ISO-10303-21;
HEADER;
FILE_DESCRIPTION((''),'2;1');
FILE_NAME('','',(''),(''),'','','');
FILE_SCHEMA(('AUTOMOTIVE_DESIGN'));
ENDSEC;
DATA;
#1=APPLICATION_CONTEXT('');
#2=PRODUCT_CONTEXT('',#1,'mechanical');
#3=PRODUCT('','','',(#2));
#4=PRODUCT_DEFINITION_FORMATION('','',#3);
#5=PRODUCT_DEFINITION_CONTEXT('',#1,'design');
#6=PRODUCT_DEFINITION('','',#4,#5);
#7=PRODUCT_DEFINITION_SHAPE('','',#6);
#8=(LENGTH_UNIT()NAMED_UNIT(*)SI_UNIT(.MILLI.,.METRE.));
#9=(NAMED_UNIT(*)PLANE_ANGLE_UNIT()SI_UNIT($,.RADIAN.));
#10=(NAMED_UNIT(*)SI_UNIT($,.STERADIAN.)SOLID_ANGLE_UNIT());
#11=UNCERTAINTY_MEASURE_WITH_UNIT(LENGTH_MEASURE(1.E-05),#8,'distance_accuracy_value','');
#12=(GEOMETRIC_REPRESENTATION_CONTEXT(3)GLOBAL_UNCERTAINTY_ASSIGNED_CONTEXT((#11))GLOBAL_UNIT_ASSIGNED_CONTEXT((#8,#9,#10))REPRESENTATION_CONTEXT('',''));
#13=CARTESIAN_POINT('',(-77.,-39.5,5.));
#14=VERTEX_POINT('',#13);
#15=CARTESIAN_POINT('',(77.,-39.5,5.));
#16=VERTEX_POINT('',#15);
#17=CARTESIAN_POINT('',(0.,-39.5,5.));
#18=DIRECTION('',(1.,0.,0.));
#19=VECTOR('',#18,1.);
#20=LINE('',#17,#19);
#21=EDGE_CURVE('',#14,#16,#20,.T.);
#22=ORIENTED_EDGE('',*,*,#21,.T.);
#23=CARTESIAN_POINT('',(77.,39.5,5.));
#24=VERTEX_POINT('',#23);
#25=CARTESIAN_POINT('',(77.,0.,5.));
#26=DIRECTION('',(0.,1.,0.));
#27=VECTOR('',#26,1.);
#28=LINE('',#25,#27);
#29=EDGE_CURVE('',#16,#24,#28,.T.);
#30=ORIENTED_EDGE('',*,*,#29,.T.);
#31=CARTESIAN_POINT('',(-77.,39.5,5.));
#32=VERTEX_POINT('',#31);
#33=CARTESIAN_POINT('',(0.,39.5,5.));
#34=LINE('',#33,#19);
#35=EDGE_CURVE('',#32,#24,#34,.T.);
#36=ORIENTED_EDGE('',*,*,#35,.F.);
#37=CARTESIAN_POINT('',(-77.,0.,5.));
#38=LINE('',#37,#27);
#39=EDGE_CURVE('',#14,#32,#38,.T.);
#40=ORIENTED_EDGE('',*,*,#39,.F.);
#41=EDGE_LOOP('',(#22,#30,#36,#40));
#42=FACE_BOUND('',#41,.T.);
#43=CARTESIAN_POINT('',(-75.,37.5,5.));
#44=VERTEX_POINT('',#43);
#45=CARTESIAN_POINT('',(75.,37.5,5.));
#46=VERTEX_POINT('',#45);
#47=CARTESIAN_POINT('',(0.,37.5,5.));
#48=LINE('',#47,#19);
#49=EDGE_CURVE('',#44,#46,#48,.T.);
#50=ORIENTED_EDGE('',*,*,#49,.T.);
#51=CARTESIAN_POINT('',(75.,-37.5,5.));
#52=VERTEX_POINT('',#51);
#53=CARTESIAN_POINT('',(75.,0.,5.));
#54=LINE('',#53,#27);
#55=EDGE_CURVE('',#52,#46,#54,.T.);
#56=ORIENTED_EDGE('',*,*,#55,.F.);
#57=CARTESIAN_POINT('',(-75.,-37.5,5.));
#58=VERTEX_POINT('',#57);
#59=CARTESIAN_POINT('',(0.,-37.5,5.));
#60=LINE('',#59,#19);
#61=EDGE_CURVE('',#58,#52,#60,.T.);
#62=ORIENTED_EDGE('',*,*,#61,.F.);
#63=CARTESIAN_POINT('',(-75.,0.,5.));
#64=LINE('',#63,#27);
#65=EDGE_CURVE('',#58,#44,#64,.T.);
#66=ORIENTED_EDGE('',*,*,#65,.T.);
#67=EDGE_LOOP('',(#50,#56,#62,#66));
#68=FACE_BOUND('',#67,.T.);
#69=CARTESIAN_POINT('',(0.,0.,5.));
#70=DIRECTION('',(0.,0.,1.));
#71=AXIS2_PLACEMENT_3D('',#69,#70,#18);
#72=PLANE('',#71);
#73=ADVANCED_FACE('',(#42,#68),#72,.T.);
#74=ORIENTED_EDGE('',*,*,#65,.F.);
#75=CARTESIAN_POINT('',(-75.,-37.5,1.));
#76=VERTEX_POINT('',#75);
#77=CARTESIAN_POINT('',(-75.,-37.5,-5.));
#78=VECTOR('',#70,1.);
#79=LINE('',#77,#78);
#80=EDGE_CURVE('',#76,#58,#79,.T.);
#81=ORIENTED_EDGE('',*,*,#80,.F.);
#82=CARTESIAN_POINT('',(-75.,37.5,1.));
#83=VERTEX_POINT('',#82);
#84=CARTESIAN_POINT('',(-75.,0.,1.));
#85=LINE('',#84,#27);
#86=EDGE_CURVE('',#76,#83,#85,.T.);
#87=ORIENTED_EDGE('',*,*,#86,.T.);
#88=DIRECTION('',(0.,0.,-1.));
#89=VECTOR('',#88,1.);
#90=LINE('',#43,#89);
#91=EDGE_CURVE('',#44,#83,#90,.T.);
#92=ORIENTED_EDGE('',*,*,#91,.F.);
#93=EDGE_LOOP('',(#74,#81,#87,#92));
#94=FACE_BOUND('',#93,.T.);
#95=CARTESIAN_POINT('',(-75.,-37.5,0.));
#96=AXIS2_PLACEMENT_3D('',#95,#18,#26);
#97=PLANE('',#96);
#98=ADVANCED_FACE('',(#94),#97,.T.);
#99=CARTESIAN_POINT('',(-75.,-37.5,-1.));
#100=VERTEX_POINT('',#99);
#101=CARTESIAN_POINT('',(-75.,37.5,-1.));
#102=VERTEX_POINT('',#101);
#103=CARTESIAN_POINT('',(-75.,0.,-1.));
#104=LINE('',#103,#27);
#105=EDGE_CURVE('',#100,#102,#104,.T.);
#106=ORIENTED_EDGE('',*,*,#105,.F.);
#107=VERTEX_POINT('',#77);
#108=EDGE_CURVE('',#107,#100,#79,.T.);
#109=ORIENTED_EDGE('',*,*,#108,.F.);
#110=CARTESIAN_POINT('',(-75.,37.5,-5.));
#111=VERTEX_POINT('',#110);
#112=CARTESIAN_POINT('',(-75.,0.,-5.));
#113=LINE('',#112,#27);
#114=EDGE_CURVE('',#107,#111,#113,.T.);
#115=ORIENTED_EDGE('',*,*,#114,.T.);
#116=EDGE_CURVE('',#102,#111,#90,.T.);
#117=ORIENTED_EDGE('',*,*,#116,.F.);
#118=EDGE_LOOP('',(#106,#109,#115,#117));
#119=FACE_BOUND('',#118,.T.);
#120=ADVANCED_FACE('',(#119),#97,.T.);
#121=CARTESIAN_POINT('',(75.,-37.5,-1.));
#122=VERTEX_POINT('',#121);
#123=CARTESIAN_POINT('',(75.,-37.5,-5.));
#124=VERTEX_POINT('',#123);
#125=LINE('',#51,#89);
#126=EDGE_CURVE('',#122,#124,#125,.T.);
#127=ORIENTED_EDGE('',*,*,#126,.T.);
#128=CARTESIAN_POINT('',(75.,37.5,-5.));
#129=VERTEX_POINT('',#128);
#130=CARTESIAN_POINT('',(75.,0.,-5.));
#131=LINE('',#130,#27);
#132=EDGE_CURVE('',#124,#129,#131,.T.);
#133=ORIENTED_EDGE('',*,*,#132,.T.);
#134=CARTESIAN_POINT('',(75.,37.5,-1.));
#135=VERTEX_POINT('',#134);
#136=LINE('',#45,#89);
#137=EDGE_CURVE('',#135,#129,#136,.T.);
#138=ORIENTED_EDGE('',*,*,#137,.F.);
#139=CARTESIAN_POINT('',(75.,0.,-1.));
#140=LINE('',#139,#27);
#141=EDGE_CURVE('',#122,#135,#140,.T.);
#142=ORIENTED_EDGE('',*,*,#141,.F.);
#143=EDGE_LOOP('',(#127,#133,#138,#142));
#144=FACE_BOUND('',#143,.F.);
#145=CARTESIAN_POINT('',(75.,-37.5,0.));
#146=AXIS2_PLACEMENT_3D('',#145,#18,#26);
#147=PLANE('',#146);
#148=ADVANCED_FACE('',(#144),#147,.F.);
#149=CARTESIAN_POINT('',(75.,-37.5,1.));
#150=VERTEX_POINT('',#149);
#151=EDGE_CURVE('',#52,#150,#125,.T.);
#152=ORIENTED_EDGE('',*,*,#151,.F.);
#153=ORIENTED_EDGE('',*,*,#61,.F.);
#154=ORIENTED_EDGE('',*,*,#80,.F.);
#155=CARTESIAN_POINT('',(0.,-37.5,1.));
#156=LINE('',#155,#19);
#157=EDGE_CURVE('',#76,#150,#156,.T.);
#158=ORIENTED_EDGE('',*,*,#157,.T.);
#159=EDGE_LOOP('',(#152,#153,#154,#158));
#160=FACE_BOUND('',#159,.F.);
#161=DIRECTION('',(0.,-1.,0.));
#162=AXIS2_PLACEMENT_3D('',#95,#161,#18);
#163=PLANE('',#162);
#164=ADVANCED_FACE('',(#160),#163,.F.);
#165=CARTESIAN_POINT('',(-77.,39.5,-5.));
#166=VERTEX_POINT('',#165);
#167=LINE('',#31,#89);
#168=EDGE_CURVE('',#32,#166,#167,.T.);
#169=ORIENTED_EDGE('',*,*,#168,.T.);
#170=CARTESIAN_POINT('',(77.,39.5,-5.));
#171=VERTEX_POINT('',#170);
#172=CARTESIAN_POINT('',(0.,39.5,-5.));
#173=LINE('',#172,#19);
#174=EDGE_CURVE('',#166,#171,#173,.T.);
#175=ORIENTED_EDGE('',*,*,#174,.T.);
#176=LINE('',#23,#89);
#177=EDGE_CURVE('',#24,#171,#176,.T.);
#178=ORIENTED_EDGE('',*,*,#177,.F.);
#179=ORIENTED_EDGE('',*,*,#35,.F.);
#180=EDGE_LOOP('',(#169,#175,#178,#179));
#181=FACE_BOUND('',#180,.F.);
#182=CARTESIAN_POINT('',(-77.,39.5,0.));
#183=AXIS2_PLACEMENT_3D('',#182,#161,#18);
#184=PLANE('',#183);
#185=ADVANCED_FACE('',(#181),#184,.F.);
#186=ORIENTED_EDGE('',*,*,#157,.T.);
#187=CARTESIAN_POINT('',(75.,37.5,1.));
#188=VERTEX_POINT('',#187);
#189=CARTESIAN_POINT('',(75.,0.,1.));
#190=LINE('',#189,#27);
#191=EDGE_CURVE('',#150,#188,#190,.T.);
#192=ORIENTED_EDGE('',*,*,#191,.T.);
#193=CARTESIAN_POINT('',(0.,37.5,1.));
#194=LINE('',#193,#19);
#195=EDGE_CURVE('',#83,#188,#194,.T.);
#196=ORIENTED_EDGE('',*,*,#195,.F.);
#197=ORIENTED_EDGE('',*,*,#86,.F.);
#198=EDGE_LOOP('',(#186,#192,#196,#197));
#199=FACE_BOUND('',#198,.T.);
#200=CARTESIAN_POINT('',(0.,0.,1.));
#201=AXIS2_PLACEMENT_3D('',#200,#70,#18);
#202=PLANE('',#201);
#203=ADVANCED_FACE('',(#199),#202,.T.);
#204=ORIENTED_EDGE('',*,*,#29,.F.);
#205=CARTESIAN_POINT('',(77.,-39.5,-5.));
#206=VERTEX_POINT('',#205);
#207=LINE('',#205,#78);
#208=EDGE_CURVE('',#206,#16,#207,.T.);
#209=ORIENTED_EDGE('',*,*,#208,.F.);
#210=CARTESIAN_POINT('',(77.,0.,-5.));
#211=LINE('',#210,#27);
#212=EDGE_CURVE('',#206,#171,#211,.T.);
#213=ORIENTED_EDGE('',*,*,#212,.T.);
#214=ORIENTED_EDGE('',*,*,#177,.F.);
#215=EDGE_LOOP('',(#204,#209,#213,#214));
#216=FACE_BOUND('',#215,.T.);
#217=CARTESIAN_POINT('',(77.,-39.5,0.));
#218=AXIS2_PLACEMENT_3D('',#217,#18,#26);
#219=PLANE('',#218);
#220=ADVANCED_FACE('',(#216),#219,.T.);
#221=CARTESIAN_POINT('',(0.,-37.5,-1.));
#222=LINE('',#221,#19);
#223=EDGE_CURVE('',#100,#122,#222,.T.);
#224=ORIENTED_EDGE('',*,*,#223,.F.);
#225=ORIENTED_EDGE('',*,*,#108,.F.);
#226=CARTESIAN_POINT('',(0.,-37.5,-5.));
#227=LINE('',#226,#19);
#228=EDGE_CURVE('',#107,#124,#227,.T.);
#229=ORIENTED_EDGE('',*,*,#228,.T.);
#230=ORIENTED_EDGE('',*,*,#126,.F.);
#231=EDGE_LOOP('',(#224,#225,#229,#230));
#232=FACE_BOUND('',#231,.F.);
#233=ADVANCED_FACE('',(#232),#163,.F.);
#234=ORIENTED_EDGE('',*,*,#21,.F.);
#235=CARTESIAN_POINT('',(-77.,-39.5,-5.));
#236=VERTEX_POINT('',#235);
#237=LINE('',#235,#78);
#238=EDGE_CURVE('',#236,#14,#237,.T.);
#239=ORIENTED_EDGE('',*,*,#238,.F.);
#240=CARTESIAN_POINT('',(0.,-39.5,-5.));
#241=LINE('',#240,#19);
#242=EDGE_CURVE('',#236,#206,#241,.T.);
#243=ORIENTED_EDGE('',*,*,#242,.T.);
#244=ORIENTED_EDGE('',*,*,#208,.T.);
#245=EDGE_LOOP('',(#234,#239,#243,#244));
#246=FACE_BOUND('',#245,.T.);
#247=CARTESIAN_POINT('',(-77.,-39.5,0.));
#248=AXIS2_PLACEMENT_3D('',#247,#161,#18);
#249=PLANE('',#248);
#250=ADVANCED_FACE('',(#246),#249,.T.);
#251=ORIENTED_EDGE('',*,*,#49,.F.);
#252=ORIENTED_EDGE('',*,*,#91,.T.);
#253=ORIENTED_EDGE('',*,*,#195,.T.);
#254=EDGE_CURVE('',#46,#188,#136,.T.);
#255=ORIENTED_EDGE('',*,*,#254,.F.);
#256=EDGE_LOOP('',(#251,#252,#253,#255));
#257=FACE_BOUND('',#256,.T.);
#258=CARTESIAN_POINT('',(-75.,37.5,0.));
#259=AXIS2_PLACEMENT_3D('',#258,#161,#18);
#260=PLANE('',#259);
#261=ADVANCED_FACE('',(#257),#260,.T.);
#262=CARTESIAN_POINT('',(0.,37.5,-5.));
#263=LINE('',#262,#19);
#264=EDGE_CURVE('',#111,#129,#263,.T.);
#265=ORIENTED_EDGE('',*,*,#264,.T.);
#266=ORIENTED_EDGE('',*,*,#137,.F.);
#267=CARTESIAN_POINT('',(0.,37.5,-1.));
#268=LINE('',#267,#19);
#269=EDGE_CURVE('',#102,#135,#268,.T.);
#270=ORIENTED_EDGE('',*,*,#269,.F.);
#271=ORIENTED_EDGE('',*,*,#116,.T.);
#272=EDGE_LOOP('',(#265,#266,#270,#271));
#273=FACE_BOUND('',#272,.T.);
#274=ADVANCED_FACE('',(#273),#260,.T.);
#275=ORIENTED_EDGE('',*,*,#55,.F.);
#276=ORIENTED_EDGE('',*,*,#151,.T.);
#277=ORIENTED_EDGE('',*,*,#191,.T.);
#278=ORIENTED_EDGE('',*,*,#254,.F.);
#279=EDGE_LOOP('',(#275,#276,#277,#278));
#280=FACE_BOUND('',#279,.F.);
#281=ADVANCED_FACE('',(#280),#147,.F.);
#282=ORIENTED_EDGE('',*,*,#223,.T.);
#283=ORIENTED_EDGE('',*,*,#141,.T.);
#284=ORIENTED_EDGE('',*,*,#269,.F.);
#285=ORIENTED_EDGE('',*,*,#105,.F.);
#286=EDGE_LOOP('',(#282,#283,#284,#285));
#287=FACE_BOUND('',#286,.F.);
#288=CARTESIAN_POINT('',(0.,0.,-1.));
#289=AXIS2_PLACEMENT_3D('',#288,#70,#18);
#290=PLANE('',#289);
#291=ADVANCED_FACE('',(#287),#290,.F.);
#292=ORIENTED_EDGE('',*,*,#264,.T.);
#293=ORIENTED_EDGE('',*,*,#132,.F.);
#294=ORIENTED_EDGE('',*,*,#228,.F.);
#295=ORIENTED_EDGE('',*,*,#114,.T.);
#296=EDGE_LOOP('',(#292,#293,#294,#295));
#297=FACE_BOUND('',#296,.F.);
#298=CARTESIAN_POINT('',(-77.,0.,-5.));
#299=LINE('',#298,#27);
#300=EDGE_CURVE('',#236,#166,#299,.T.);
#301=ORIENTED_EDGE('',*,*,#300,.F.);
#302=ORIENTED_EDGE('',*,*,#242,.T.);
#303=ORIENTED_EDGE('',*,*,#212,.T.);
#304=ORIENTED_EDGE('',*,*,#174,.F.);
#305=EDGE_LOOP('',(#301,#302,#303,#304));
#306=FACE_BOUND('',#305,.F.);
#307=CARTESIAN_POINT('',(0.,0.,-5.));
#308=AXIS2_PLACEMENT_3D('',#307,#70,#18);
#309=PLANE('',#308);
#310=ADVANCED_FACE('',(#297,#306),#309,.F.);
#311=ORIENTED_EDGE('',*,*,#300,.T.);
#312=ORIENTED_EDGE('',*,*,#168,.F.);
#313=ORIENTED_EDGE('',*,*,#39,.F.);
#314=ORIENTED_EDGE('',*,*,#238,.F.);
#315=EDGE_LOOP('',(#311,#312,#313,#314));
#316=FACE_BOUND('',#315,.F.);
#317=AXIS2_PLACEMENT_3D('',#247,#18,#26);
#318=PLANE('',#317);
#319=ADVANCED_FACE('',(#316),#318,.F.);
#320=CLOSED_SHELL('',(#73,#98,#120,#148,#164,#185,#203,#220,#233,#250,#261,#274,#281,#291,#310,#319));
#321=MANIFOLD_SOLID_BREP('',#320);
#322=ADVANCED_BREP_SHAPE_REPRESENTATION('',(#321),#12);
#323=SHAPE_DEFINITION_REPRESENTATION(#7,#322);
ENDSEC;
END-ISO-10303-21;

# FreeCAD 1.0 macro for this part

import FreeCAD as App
import Part
import Sketcher
Q = App.Units.Quantity


def add_polygon(sketch, points):
    """Adds a closed chain of lines whose ends are joined by coincident constraints."""
    first, n = sketch.GeometryCount, len(points)
    for a, b in zip(points, points[1:] + points[:1]):
        sketch.addGeometry(Part.LineSegment(App.Vector(*a, 0), App.Vector(*b, 0)), False)
    for i in range(n):
        sketch.addConstraint(Sketcher.Constraint("Coincident", first + i, 2, first + (i + 1) % n, 1))

doc = App.newDocument("Part")
body = doc.addObject("PartDesign::Body", "Body")

# Sketch on XY plane
sketch1 = body.newObject("Sketcher::SketchObject", "Sketch")
sketch1.AttachmentSupport = (doc.getObject("XY_Plane"), [""])
sketch1.MapMode = "FlatFace"
add_polygon(sketch1, [(-75, 38), (-75, -38), (75, -38), (75, 38)])  # lines 0-3
sketch1.addConstraint(Sketcher.Constraint("Vertical", 0))
sketch1.addConstraint(Sketcher.Constraint("Horizontal", 1))
sketch1.addConstraint(Sketcher.Constraint("Vertical", 2))
sketch1.addConstraint(Sketcher.Constraint("Horizontal", 3))
sketch1.addConstraint(Sketcher.Constraint("Symmetric", 0, 2, 2, 2, -1, 1))
sketch1.addConstraint(Sketcher.Constraint("DistanceX", 1, 1, 1, 2, Q("150 mm")))
sketch1.addConstraint(Sketcher.Constraint("DistanceY", 0, 2, 0, 1, Q("75 mm")))
pad1 = body.newObject("PartDesign::Pad", "Pad")
pad1.Profile = sketch1
pad1.Length = 2
pad1.Midplane = True

# Sketch on XY plane
sketch2 = body.newObject("Sketcher::SketchObject", "Sketch001")
sketch2.AttachmentSupport = (doc.getObject("XY_Plane"), [""])
sketch2.MapMode = "FlatFace"
add_polygon(sketch2, [(-77, 40), (-77, -40), (77, -40), (77, 40)])  # lines 0-3
add_polygon(sketch2, [(75, -38), (-75, -38), (-75, 38), (75, 38)])  # lines 4-7
sketch2.addConstraint(Sketcher.Constraint("Vertical", 0))
sketch2.addConstraint(Sketcher.Constraint("Horizontal", 1))
sketch2.addConstraint(Sketcher.Constraint("Vertical", 2))
sketch2.addConstraint(Sketcher.Constraint("Horizontal", 3))
sketch2.addConstraint(Sketcher.Constraint("Horizontal", 4))
sketch2.addConstraint(Sketcher.Constraint("Vertical", 5))
sketch2.addConstraint(Sketcher.Constraint("Horizontal", 6))
sketch2.addConstraint(Sketcher.Constraint("Vertical", 7))
sketch2.addConstraint(Sketcher.Constraint("Symmetric", 0, 2, 2, 2, -1, 1))
sketch2.addConstraint(Sketcher.Constraint("Symmetric", 4, 2, 6, 2, -1, 1))
sketch2.addConstraint(Sketcher.Constraint("DistanceX", 1, 1, 1, 2, Q("154 mm")))
sketch2.addConstraint(Sketcher.Constraint("DistanceX", 4, 2, 4, 1, Q("150 mm")))
sketch2.addConstraint(Sketcher.Constraint("DistanceY", 0, 2, 0, 1, Q("79 mm")))
sketch2.addConstraint(Sketcher.Constraint("DistanceY", 5, 1, 5, 2, Q("75 mm")))
pad2 = body.newObject("PartDesign::Pad", "Pad001")
pad2.Profile = sketch2
pad2.Length = 10
pad2.Midplane = True

doc.recompute()
